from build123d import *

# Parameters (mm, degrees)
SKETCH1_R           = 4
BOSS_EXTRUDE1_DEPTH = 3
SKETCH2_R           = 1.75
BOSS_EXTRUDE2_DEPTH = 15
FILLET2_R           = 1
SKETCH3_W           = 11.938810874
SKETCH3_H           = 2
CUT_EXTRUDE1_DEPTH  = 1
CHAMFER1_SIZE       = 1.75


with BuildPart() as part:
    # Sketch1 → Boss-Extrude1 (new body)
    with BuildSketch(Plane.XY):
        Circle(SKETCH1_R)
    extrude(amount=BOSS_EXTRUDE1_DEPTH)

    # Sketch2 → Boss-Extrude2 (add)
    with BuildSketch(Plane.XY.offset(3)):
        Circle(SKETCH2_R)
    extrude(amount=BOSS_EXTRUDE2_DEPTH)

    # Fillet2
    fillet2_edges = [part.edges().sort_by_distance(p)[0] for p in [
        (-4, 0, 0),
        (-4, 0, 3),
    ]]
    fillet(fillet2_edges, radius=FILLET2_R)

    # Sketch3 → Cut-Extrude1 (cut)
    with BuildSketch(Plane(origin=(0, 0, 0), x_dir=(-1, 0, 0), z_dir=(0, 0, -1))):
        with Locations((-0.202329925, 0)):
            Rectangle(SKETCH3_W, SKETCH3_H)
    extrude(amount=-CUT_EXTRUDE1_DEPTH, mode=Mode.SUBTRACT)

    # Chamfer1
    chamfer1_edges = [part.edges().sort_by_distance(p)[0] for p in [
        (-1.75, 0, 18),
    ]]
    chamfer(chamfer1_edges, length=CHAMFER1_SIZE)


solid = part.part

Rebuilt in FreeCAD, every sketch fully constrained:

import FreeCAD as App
import Part
import Sketcher

V = App.Vector


def edges_at(feature, points):
    """Names of the edges that pass closest to the given points."""
    edges = feature.Shape.Edges
    near = lambda p: min(range(len(edges)), key=lambda i: edges[i].distToShape(Part.Vertex(*p))[0])
    return sorted({f"Edge{near(p) + 1}" for p in points})


def add_polygon(sketch, points):
    """Adds a closed chain of lines whose ends are joined by coincident constraints."""
    first, n = sketch.GeometryCount, len(points)
    for a, b in zip(points, points[1:] + points[:1]):
        sketch.addGeometry(Part.LineSegment(App.Vector(*a, 0), App.Vector(*b, 0)), False)
    for i in range(n):
        sketch.addConstraint(Sketcher.Constraint("Coincident", first + i, 2, first + (i + 1) % n, 1))

doc = App.newDocument("Part")
body = doc.addObject("PartDesign::Body", "Body")

sketch1 = body.newObject("Sketcher::SketchObject", "Sketch")
sketch1.AttachmentSupport = (doc.getObject("XY_Plane"), [""])
sketch1.MapMode = "FlatFace"
sketch1.addGeometry(Part.Circle(V(0, 0, 0), V(0, 0, 1), 4), False)
sketch1.addConstraint([
    Sketcher.Constraint("Coincident", 0, 3, -1, 1),
    Sketcher.Constraint("Diameter", 0, 8.0),
])
pad1 = body.newObject("PartDesign::Pad", "Pad")
pad1.Profile = sketch1
pad1.Length = 3

sketch2 = body.newObject("Sketcher::SketchObject", "Sketch001")
sketch2.AttachmentSupport = (doc.getObject("XY_Plane"), [""])
sketch2.MapMode = "FlatFace"
sketch2.AttachmentOffset = App.Placement(V(0, 0, 3), App.Rotation())
sketch2.addGeometry(Part.Circle(V(0, 0, 0), V(0, 0, 1), 1.8), False)
sketch2.addConstraint([
    Sketcher.Constraint("Coincident", 0, 3, -1, 1),
    Sketcher.Constraint("Diameter", 0, 3.5),
])
pad2 = body.newObject("PartDesign::Pad", "Pad001")
pad2.Profile = sketch2
pad2.Length = 15
doc.recompute()

fillet = body.newObject("PartDesign::Fillet", "Fillet")
fillet.Base = (pad2, edges_at(pad2, [(-4, 0, 0), (-4, 0, 3)]))
fillet.Radius = 1

sketch3 = body.newObject("Sketcher::SketchObject", "Sketch002")
sketch3.AttachmentSupport = (doc.getObject("XY_Plane"), [""])
sketch3.MapMode = "FlatFace"
add_polygon(sketch3, [(6.2, 1), (6.2, -1), (-5.8, -1), (-5.8, 1)])
sketch3.addConstraint([
    Sketcher.Constraint("Vertical", 0),
    Sketcher.Constraint("Horizontal", 1),
    Sketcher.Constraint("Vertical", 2),
    Sketcher.Constraint("Horizontal", 3),
    Sketcher.Constraint("DistanceY", 0, 2, 0, 1, 2.0),
    Sketcher.Constraint("DistanceY", 0, 2, -1, 1, 1.0),
    Sketcher.Constraint("DistanceX", 1, 2, 1, 1, 11.938811),
    Sketcher.Constraint("DistanceX", -1, 1, 0, 2, 6.171735),
])
pocket1 = body.newObject("PartDesign::Pocket", "Pocket")
pocket1.Profile = sketch3
pocket1.Length = 1
pocket1.Reversed = True
doc.recompute()

chamfer = body.newObject("PartDesign::Chamfer", "Chamfer")
chamfer.Base = (pocket1, edges_at(pocket1, [(-1.75, 0, 18)]))
chamfer.Size = 1.75

doc.recompute()
